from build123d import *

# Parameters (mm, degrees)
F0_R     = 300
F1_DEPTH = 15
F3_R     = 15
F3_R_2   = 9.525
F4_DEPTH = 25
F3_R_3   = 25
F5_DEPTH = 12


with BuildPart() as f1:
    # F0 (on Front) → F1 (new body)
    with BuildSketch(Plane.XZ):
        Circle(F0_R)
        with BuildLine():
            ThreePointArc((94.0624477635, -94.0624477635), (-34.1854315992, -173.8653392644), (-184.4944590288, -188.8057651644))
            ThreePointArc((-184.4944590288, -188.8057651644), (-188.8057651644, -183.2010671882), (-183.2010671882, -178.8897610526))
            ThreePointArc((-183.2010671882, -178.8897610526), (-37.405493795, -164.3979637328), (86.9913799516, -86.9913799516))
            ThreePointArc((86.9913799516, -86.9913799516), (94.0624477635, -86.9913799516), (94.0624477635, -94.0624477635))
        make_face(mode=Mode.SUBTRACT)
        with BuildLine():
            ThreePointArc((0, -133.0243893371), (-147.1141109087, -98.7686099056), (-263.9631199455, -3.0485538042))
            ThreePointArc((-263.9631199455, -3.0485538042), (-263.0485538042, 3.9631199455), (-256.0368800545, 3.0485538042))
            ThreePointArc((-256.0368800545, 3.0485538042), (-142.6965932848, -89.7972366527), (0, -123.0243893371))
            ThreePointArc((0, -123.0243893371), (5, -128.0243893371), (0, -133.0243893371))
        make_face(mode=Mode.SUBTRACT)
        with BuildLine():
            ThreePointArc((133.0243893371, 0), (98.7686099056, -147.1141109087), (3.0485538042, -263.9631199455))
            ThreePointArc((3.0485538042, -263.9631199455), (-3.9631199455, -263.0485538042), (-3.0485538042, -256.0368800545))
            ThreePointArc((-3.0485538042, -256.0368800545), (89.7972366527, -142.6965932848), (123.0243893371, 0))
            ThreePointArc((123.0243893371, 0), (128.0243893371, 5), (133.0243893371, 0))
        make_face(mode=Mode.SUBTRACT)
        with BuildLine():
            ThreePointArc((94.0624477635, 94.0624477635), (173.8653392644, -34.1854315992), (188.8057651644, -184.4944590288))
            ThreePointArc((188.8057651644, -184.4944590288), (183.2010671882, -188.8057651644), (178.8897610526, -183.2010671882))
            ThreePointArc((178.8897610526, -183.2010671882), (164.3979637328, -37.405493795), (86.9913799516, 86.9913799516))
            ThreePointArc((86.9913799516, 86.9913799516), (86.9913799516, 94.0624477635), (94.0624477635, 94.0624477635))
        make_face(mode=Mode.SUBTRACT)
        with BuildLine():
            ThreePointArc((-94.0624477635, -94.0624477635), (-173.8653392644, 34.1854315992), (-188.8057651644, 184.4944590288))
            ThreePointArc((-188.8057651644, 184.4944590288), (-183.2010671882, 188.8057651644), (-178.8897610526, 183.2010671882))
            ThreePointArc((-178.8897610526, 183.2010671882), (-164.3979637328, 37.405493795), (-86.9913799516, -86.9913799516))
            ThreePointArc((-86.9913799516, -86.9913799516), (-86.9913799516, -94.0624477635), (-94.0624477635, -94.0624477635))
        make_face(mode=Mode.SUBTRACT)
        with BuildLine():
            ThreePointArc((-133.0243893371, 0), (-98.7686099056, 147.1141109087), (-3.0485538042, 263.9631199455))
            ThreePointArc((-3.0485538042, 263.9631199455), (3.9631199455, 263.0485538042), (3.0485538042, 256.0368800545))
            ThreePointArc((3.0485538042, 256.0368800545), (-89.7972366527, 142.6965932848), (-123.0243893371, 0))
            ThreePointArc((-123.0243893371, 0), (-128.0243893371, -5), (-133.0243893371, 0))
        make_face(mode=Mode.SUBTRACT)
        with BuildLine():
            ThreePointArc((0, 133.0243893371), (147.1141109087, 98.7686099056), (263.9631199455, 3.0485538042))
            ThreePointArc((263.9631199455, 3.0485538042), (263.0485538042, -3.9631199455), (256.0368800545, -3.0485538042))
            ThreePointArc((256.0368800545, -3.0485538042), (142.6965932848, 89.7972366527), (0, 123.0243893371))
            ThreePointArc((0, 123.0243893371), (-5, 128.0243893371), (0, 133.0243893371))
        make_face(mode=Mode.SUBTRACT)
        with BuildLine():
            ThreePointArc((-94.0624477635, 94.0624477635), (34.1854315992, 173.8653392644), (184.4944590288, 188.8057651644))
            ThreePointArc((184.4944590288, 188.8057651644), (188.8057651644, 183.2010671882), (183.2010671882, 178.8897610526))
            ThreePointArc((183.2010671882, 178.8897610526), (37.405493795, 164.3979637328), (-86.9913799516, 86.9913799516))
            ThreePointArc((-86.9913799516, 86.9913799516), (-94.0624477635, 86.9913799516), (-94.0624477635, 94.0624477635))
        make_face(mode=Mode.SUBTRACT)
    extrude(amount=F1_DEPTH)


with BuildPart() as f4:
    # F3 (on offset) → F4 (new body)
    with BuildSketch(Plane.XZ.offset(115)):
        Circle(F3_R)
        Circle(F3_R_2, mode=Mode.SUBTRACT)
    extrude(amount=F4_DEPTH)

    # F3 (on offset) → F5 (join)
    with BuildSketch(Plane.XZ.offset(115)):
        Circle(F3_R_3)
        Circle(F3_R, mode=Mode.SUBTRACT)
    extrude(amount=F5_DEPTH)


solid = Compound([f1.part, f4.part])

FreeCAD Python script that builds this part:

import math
import FreeCAD as App
import Part
import Sketcher
Q = App.Units.Quantity

doc = App.newDocument("Part")
body = doc.addObject("PartDesign::Body", "Body")

sketch1 = doc.addObject("Sketcher::SketchObject", "Sketch")
body.addObject(sketch1)
sketch1.AttachmentSupport = (doc.XZ_Plane, [""])
sketch1.MapMode = "FlatFace"
sketch1.addGeometry(Part.Circle(App.Vector(0, 0, 0), App.Vector(0, 0, 1), 300), False)
sketch1.addGeometry(Part.ArcOfCircle(Part.Circle(App.Vector(91, -91, 0), App.Vector(0, 0, 1), 5), math.radians(-45), math.radians(135)), False)
sketch1.addGeometry(Part.ArcOfCircle(Part.Circle(App.Vector(-141, 141, 0), App.Vector(0, 0, 1), 333), math.radians(-97), math.radians(-45)), False)
sketch1.addGeometry(Part.ArcOfCircle(Part.Circle(App.Vector(-184, -184, 0), App.Vector(0, 0, 1), 5), math.radians(83), math.radians(263)), False)
sketch1.addGeometry(Part.ArcOfCircle(Part.Circle(App.Vector(-141, 141, 0), App.Vector(0, 0, 1), 323), math.radians(-97), math.radians(-45)), False)
sketch1.addGeometry(Part.ArcOfCircle(Part.Circle(App.Vector(0, -128, 0), App.Vector(0, 0, 1), 5), math.radians(-90), math.radians(90)), False)
sketch1.addGeometry(Part.ArcOfCircle(Part.Circle(App.Vector(0, 200, 0), App.Vector(0, 0, 1), 333), math.radians(-142), math.radians(-90)), False)
sketch1.addGeometry(Part.ArcOfCircle(Part.Circle(App.Vector(-260, 0, 0), App.Vector(0, 0, 1), 5), math.radians(38), math.radians(218)), False)
sketch1.addGeometry(Part.ArcOfCircle(Part.Circle(App.Vector(0, 200, 0), App.Vector(0, 0, 1), 323), math.radians(-142), math.radians(-90)), False)
sketch1.addGeometry(Part.ArcOfCircle(Part.Circle(App.Vector(128, 0, 0), App.Vector(0, 0, 1), 5), math.radians(0), math.radians(180)), False)
sketch1.addGeometry(Part.ArcOfCircle(Part.Circle(App.Vector(-200, 0, 0), App.Vector(0, 0, 1), 333), math.radians(-52), math.radians(0)), False)
sketch1.addGeometry(Part.ArcOfCircle(Part.Circle(App.Vector(0, -260, 0), App.Vector(0, 0, 1), 5), math.radians(128), math.radians(308)), False)
sketch1.addGeometry(Part.ArcOfCircle(Part.Circle(App.Vector(-200, 0, 0), App.Vector(0, 0, 1), 323), math.radians(-52), math.radians(0)), False)
sketch1.addGeometry(Part.ArcOfCircle(Part.Circle(App.Vector(91, 91, 0), App.Vector(0, 0, 1), 5), math.radians(45), math.radians(225)), False)
sketch1.addGeometry(Part.ArcOfCircle(Part.Circle(App.Vector(-141, -141, 0), App.Vector(0, 0, 1), 333), math.radians(-7), math.radians(45)), False)
sketch1.addGeometry(Part.ArcOfCircle(Part.Circle(App.Vector(184, -184, 0), App.Vector(0, 0, 1), 5), math.radians(173), math.radians(353)), False)
sketch1.addGeometry(Part.ArcOfCircle(Part.Circle(App.Vector(-141, -141, 0), App.Vector(0, 0, 1), 323), math.radians(-7), math.radians(45)), False)
sketch1.addGeometry(Part.ArcOfCircle(Part.Circle(App.Vector(-91, -91, 0), App.Vector(0, 0, 1), 5), math.radians(-135), math.radians(45)), False)
sketch1.addGeometry(Part.ArcOfCircle(Part.Circle(App.Vector(141, 141, 0), App.Vector(0, 0, 1), 333), math.radians(173), math.radians(225)), False)
sketch1.addGeometry(Part.ArcOfCircle(Part.Circle(App.Vector(-184, 184, 0), App.Vector(0, 0, 1), 5), math.radians(-7), math.radians(173)), False)
sketch1.addGeometry(Part.ArcOfCircle(Part.Circle(App.Vector(141, 141, 0), App.Vector(0, 0, 1), 323), math.radians(173), math.radians(225)), False)
sketch1.addGeometry(Part.ArcOfCircle(Part.Circle(App.Vector(-128, 0, 0), App.Vector(0, 0, 1), 5), math.radians(180), math.radians(360)), False)
sketch1.addGeometry(Part.ArcOfCircle(Part.Circle(App.Vector(200, 0, 0), App.Vector(0, 0, 1), 333), math.radians(128), math.radians(180)), False)
sketch1.addGeometry(Part.ArcOfCircle(Part.Circle(App.Vector(0, 260, 0), App.Vector(0, 0, 1), 5), math.radians(-52), math.radians(128)), False)
sketch1.addGeometry(Part.ArcOfCircle(Part.Circle(App.Vector(200, 0, 0), App.Vector(0, 0, 1), 323), math.radians(128), math.radians(180)), False)
sketch1.addGeometry(Part.ArcOfCircle(Part.Circle(App.Vector(0, 128, 0), App.Vector(0, 0, 1), 5), math.radians(90), math.radians(270)), False)
sketch1.addGeometry(Part.ArcOfCircle(Part.Circle(App.Vector(0, -200, 0), App.Vector(0, 0, 1), 333), math.radians(38), math.radians(90)), False)
sketch1.addGeometry(Part.ArcOfCircle(Part.Circle(App.Vector(260, 0, 0), App.Vector(0, 0, 1), 5), math.radians(-142), math.radians(38)), False)
sketch1.addGeometry(Part.ArcOfCircle(Part.Circle(App.Vector(0, -200, 0), App.Vector(0, 0, 1), 323), math.radians(38), math.radians(90)), False)
sketch1.addGeometry(Part.ArcOfCircle(Part.Circle(App.Vector(-91, 91, 0), App.Vector(0, 0, 1), 5), math.radians(135), math.radians(315)), False)
sketch1.addGeometry(Part.ArcOfCircle(Part.Circle(App.Vector(141, -141, 0), App.Vector(0, 0, 1), 333), math.radians(83), math.radians(135)), False)
sketch1.addGeometry(Part.ArcOfCircle(Part.Circle(App.Vector(184, 184, 0), App.Vector(0, 0, 1), 5), math.radians(-97), math.radians(83)), False)
sketch1.addGeometry(Part.ArcOfCircle(Part.Circle(App.Vector(141, -141, 0), App.Vector(0, 0, 1), 323), math.radians(83), math.radians(135)), False)
sketch1.addConstraint(Sketcher.Constraint("Tangent", 1, 1, 2, 2))
sketch1.addConstraint(Sketcher.Constraint("Tangent", 2, 1, 3, 2))
sketch1.addConstraint(Sketcher.Constraint("Tangent", 3, 1, 4, 1))
sketch1.addConstraint(Sketcher.Constraint("Tangent", 4, 2, 1, 2))
sketch1.addConstraint(Sketcher.Constraint("Tangent", 5, 1, 6, 2))
sketch1.addConstraint(Sketcher.Constraint("Tangent", 6, 1, 7, 2))
sketch1.addConstraint(Sketcher.Constraint("Tangent", 7, 1, 8, 1))
sketch1.addConstraint(Sketcher.Constraint("Tangent", 8, 2, 5, 2))
sketch1.addConstraint(Sketcher.Constraint("Tangent", 9, 1, 10, 2))
sketch1.addConstraint(Sketcher.Constraint("Tangent", 10, 1, 11, 2))
sketch1.addConstraint(Sketcher.Constraint("Tangent", 11, 1, 12, 1))
sketch1.addConstraint(Sketcher.Constraint("Tangent", 12, 2, 9, 2))
sketch1.addConstraint(Sketcher.Constraint("Tangent", 13, 1, 14, 2))
sketch1.addConstraint(Sketcher.Constraint("Tangent", 14, 1, 15, 2))
sketch1.addConstraint(Sketcher.Constraint("Tangent", 15, 1, 16, 1))
sketch1.addConstraint(Sketcher.Constraint("Tangent", 16, 2, 13, 2))
sketch1.addConstraint(Sketcher.Constraint("Tangent", 17, 1, 18, 2))
sketch1.addConstraint(Sketcher.Constraint("Tangent", 18, 1, 19, 2))
sketch1.addConstraint(Sketcher.Constraint("Tangent", 19, 1, 20, 1))
sketch1.addConstraint(Sketcher.Constraint("Tangent", 20, 2, 17, 2))
sketch1.addConstraint(Sketcher.Constraint("Tangent", 21, 1, 22, 2))
sketch1.addConstraint(Sketcher.Constraint("Tangent", 22, 1, 23, 2))
sketch1.addConstraint(Sketcher.Constraint("Tangent", 23, 1, 24, 1))
sketch1.addConstraint(Sketcher.Constraint("Tangent", 24, 2, 21, 2))
sketch1.addConstraint(Sketcher.Constraint("Tangent", 25, 1, 26, 2))
sketch1.addConstraint(Sketcher.Constraint("Tangent", 26, 1, 27, 2))
sketch1.addConstraint(Sketcher.Constraint("Tangent", 27, 1, 28, 1))
sketch1.addConstraint(Sketcher.Constraint("Tangent", 28, 2, 25, 2))
sketch1.addConstraint(Sketcher.Constraint("Tangent", 29, 1, 30, 2))
sketch1.addConstraint(Sketcher.Constraint("Tangent", 30, 1, 31, 2))
sketch1.addConstraint(Sketcher.Constraint("Tangent", 31, 1, 32, 1))
sketch1.addConstraint(Sketcher.Constraint("Tangent", 32, 2, 29, 2))
sketch1.addConstraint(Sketcher.Constraint("Coincident", 0, 3, -1, 1))
sketch1.addConstraint(Sketcher.Constraint("Coincident", 4, 3, 2, 3))
sketch1.addConstraint(Sketcher.Constraint("Coincident", 8, 3, 6, 3))
sketch1.addConstraint(Sketcher.Constraint("Coincident", 12, 3, 10, 3))
sketch1.addConstraint(Sketcher.Constraint("Coincident", 16, 3, 14, 3))
sketch1.addConstraint(Sketcher.Constraint("Coincident", 20, 3, 18, 3))
sketch1.addConstraint(Sketcher.Constraint("Coincident", 24, 3, 22, 3))
sketch1.addConstraint(Sketcher.Constraint("Coincident", 28, 3, 26, 3))
sketch1.addConstraint(Sketcher.Constraint("Coincident", 32, 3, 30, 3))
sketch1.addConstraint(Sketcher.Constraint("Equal", 3, 5))
sketch1.addConstraint(Sketcher.Constraint("Equal", 2, 6))
sketch1.addConstraint(Sketcher.Constraint("Equal", 7, 9))
sketch1.addConstraint(Sketcher.Constraint("Equal", 6, 10))
sketch1.addConstraint(Sketcher.Constraint("Equal", 11, 13))
sketch1.addConstraint(Sketcher.Constraint("Equal", 10, 14))
sketch1.addConstraint(Sketcher.Constraint("Equal", 15, 17))
sketch1.addConstraint(Sketcher.Constraint("Equal", 14, 18))
sketch1.addConstraint(Sketcher.Constraint("Equal", 19, 21))
sketch1.addConstraint(Sketcher.Constraint("Equal", 18, 22))
sketch1.addConstraint(Sketcher.Constraint("Equal", 23, 25))
sketch1.addConstraint(Sketcher.Constraint("Equal", 22, 26))
sketch1.addConstraint(Sketcher.Constraint("Equal", 27, 29))
sketch1.addConstraint(Sketcher.Constraint("Equal", 26, 30))
sketch1.addConstraint(Sketcher.Constraint("Symmetric", 13, 3, 17, 3, -1, 1))
sketch1.addConstraint(Sketcher.Constraint("Symmetric", 15, 3, 19, 3, -1, 1))
sketch1.addConstraint(Sketcher.Constraint("Symmetric", 9, 3, 21, 3, -1, 1))
sketch1.addConstraint(Sketcher.Constraint("Symmetric", 11, 3, 23, 3, -1, 1))
sketch1.addConstraint(Sketcher.Constraint("Symmetric", 5, 3, 25, 3, -1, 1))
sketch1.addConstraint(Sketcher.Constraint("Symmetric", 7, 3, 27, 3, -1, 1))
sketch1.addConstraint(Sketcher.Constraint("Symmetric", 1, 3, 29, 3, -1, 1))
sketch1.addConstraint(Sketcher.Constraint("Symmetric", 3, 3, 31, 3, -1, 1))
sketch1.addConstraint(Sketcher.Constraint("Symmetric", 3, 3, 15, 3, -2))
sketch1.addConstraint(Sketcher.Constraint("Symmetric", 1, 3, 17, 3, -2))
sketch1.addConstraint(Sketcher.Constraint("PointOnObject", 5, 3, -2))
sketch1.addConstraint(Sketcher.Constraint("PointOnObject", 6, 3, -2))
sketch1.addConstraint(Sketcher.Constraint("PointOnObject", 7, 3, -1))
sketch1.addConstraint(Sketcher.Constraint("PointOnObject", 9, 3, -1))
sketch1.addConstraint(Sketcher.Constraint("PointOnObject", 10, 3, -1))
sketch1.addConstraint(Sketcher.Constraint("PointOnObject", 11, 3, -2))
sketch1.addConstraint(Sketcher.Constraint("Horizontal", 4, 3, 18, 3))
sketch1.addConstraint(Sketcher.Constraint("Diameter", 0, Q("600 mm")))
sketch1.addConstraint(Sketcher.Constraint("Radius", 1, Q("5 mm")))
sketch1.addConstraint(Sketcher.Constraint("DistanceY", -1, 1, 6, 3, Q("200 mm")))
sketch1.addConstraint(Sketcher.Constraint("DistanceX", 7, 3, -1, 1, Q("260 mm")))
sketch1.addConstraint(Sketcher.Constraint("DistanceX", 10, 3, -1, 1, Q("200 mm")))
sketch1.addConstraint(Sketcher.Constraint("DistanceY", 3, 1, -1, 1, Q("178.889761 mm")))
sketch1.addConstraint(Sketcher.Constraint("DistanceX", -1, 1, 15, 1, Q("178.889761 mm")))
sketch1.addConstraint(Sketcher.Constraint("DistanceX", -1, 1, 1, 3, Q("90.526914 mm")))
pad1 = doc.addObject("PartDesign::Pad", "Pad")
body.addObject(pad1)
pad1.Profile = sketch1
pad1.Length = 15
body2 = doc.addObject("PartDesign::Body", "Body001")

sketch2 = doc.addObject("Sketcher::SketchObject", "Sketch001")
body2.addObject(sketch2)
sketch2.AttachmentSupport = (doc.getObject("XZ_Plane001"), [""])
sketch2.MapMode = "FlatFace"
sketch2.AttachmentOffset = App.Placement(App.Vector(0, 0, 115), App.Rotation())
sketch2.addGeometry(Part.Circle(App.Vector(0, 0, 0), App.Vector(0, 0, 1), 15), False)
sketch2.addGeometry(Part.Circle(App.Vector(0, 0, 0), App.Vector(0, 0, 1), 10), False)
sketch2.addConstraint(Sketcher.Constraint("Coincident", 0, 3, -1, 1))
sketch2.addConstraint(Sketcher.Constraint("Coincident", 1, 3, -1, 1))
sketch2.addConstraint(Sketcher.Constraint("Diameter", 0, Q("30 mm")))
sketch2.addConstraint(Sketcher.Constraint("Diameter", 1, Q("19.05 mm")))
pad2 = doc.addObject("PartDesign::Pad", "Pad001")
body2.addObject(pad2)
pad2.Profile = sketch2
pad2.Length = 25

sketch3 = doc.addObject("Sketcher::SketchObject", "Sketch002")
body2.addObject(sketch3)
sketch3.AttachmentSupport = (doc.getObject("XZ_Plane001"), [""])
sketch3.MapMode = "FlatFace"
sketch3.AttachmentOffset = App.Placement(App.Vector(0, 0, 115), App.Rotation())
sketch3.addGeometry(Part.Circle(App.Vector(0, 0, 0), App.Vector(0, 0, 1), 25), False)
sketch3.addGeometry(Part.Circle(App.Vector(0, 0, 0), App.Vector(0, 0, 1), 15), False)
sketch3.addConstraint(Sketcher.Constraint("Coincident", 0, 3, -1, 1))
sketch3.addConstraint(Sketcher.Constraint("Coincident", 1, 3, -1, 1))
sketch3.addConstraint(Sketcher.Constraint("Diameter", 0, Q("50 mm")))
sketch3.addConstraint(Sketcher.Constraint("Diameter", 1, Q("30 mm")))
pad3 = doc.addObject("PartDesign::Pad", "Pad002")
body2.addObject(pad3)
pad3.Profile = sketch3
pad3.Length = 12

doc.recompute()
